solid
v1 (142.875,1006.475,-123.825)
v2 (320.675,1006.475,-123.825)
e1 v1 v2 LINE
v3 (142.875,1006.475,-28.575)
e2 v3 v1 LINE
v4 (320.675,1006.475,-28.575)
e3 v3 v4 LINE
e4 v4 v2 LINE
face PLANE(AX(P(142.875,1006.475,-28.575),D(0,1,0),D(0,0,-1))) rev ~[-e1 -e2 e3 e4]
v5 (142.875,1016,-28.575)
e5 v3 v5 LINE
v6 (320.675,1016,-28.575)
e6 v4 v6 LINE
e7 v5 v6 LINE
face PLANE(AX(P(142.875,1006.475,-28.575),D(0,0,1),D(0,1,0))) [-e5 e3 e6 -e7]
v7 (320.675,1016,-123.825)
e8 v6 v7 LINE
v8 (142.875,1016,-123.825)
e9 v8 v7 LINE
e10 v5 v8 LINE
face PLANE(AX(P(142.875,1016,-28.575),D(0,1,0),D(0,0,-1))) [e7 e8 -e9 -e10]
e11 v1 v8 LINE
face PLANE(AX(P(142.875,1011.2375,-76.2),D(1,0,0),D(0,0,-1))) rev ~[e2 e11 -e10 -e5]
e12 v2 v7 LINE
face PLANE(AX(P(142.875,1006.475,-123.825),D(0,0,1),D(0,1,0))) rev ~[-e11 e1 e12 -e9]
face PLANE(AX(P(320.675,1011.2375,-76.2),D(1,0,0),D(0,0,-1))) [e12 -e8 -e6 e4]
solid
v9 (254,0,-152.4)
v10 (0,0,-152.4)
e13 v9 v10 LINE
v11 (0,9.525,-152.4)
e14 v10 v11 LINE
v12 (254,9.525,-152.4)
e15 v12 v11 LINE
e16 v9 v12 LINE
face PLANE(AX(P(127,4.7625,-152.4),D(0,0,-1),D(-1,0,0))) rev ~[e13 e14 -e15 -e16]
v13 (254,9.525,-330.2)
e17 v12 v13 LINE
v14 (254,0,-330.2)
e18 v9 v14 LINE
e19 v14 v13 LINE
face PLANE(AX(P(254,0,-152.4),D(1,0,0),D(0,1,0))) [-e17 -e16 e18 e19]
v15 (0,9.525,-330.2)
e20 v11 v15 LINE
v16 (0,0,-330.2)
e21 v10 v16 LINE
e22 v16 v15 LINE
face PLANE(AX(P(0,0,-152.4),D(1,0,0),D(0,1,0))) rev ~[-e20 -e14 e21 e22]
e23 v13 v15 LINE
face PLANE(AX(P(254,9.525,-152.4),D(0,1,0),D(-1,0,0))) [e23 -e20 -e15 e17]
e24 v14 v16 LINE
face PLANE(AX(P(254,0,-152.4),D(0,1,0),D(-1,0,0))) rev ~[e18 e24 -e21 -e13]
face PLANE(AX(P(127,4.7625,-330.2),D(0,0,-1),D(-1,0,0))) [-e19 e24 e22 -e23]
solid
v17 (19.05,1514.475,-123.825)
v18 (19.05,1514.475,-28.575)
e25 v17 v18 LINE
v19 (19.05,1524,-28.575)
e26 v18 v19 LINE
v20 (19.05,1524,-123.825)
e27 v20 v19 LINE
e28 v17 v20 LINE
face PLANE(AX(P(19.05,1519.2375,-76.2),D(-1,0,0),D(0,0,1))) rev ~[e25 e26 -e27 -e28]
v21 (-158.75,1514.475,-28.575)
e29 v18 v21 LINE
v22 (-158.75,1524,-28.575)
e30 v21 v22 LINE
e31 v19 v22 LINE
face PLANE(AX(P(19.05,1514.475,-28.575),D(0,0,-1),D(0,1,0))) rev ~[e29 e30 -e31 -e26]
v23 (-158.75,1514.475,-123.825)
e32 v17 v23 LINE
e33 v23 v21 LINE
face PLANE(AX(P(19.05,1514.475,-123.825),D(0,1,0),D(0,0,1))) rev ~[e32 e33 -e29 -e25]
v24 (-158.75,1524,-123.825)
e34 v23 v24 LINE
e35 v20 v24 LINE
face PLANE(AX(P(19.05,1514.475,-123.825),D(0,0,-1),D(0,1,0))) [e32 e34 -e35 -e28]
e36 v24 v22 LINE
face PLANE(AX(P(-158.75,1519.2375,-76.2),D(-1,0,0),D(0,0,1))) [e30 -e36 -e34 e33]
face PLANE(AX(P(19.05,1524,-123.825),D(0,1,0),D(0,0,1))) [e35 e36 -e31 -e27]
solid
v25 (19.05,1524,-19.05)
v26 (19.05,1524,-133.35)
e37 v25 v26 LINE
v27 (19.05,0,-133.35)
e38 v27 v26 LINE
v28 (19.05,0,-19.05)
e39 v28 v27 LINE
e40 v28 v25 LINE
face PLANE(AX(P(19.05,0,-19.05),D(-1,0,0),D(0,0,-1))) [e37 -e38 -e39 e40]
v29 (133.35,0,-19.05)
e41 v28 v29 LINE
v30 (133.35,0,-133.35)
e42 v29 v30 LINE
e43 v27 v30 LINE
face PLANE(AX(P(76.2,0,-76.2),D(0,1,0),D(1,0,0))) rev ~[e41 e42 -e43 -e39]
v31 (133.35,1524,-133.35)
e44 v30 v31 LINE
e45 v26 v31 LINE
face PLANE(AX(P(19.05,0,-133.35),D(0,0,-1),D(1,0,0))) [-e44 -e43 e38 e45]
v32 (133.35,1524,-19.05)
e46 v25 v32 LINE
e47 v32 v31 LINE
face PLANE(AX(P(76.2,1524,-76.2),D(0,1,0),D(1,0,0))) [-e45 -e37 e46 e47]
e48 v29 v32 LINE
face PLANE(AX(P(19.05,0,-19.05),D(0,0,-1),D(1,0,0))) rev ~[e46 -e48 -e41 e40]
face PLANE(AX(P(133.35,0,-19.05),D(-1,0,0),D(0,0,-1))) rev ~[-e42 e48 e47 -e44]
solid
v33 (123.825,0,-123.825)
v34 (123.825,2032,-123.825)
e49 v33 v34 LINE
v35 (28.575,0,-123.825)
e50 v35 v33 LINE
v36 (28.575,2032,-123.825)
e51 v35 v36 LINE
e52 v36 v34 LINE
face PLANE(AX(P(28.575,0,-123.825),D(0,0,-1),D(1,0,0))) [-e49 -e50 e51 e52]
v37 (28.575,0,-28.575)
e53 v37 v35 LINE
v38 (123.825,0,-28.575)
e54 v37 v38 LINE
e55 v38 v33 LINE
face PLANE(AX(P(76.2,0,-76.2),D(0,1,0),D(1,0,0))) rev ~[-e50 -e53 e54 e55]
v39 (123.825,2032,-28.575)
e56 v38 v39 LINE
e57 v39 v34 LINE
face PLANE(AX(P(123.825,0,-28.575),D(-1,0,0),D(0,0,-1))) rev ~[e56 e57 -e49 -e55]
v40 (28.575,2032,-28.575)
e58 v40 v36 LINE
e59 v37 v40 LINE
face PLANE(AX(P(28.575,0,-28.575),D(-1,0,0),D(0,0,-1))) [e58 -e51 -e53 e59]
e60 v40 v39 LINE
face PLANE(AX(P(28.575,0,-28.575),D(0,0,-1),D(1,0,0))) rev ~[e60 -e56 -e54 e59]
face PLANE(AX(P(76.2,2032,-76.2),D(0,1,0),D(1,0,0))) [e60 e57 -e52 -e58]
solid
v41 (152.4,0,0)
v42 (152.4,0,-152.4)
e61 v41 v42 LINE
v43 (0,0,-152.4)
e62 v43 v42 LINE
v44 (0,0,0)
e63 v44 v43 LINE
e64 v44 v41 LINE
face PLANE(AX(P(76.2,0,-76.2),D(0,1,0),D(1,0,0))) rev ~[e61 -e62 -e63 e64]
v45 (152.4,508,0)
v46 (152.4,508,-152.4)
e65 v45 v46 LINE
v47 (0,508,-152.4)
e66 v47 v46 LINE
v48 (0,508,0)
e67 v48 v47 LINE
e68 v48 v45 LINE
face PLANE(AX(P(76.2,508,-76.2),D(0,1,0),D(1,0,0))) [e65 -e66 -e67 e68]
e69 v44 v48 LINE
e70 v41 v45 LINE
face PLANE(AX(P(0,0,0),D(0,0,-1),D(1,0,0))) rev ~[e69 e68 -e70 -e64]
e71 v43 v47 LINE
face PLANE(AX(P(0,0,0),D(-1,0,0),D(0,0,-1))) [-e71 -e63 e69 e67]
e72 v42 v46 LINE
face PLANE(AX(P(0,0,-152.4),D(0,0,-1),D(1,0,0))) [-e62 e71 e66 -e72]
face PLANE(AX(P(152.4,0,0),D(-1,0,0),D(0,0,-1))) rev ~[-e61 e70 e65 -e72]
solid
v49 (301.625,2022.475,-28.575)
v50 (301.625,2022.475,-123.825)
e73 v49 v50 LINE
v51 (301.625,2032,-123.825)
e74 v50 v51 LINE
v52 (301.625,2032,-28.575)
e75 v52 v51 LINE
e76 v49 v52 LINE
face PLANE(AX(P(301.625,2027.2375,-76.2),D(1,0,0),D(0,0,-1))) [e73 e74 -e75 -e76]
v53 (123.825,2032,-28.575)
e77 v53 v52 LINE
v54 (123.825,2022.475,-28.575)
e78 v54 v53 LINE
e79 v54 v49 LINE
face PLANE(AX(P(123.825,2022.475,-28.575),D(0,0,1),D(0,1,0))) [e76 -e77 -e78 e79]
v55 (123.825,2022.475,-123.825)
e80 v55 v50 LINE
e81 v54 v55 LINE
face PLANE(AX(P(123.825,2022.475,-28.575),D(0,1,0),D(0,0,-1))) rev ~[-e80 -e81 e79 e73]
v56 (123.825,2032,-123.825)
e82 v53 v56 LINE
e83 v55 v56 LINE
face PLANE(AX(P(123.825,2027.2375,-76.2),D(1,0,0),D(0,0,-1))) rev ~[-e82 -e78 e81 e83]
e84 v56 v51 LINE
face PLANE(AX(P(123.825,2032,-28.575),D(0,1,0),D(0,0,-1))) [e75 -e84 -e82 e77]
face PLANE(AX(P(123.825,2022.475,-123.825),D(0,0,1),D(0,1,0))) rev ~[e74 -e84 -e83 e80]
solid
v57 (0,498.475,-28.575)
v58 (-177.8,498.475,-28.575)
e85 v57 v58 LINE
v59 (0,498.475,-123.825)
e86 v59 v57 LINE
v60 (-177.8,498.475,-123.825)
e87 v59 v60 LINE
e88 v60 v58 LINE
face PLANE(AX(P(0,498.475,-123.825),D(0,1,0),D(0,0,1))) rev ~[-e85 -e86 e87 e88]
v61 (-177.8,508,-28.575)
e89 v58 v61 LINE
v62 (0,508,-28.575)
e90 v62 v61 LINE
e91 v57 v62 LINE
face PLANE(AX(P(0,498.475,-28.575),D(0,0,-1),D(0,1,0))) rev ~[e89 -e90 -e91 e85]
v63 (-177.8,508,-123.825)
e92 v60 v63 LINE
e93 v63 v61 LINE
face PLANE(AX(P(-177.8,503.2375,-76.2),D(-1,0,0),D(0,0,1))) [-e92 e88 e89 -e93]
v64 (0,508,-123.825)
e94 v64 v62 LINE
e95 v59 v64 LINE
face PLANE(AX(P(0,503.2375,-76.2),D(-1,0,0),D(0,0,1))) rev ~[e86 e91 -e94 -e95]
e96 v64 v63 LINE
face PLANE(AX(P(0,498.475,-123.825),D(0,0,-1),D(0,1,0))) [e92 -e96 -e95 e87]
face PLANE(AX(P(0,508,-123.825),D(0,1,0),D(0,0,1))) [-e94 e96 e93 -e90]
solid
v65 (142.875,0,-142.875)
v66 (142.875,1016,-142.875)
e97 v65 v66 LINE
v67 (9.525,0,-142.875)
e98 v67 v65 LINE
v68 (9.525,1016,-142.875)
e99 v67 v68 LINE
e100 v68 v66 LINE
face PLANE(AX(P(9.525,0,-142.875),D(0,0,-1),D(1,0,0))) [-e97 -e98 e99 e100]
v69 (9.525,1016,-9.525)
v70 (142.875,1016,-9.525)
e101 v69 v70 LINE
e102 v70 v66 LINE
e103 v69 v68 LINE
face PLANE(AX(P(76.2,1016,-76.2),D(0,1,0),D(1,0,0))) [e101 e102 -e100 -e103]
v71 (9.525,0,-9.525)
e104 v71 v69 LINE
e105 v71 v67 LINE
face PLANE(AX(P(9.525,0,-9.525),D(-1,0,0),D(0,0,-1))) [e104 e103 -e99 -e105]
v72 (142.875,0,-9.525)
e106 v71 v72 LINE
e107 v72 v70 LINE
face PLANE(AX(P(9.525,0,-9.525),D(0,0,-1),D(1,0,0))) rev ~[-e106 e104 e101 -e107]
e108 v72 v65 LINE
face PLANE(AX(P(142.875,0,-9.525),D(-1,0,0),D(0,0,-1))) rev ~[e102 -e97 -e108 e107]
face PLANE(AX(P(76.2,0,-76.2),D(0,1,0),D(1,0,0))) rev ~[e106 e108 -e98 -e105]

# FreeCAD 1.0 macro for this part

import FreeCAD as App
import Part
import Sketcher

V = App.Vector
Q = App.Units.Quantity


def add_polygon(sketch, points):
    """Adds a closed chain of lines whose ends are joined by coincident constraints."""
    first, n = sketch.GeometryCount, len(points)
    for a, b in zip(points, points[1:] + points[:1]):
        sketch.addGeometry(Part.LineSegment(App.Vector(*a, 0), App.Vector(*b, 0)), False)
    for i in range(n):
        sketch.addConstraint(Sketcher.Constraint("Coincident", first + i, 2, first + (i + 1) % n, 1))

doc = App.newDocument("Part")
body = doc.addObject("PartDesign::Body", "Body")

sketch1 = body.newObject("Sketcher::SketchObject", "Sketch")
sketch1.AttachmentSupport = (doc.getObject("XZ_Plane"), [""])
sketch1.MapMode = "FlatFace"
add_polygon(sketch1, [(28.575, -123.825), (28.575, -28.575), (123.825, -28.575), (123.825, -123.825)])
sketch1.addConstraint(Sketcher.Constraint("Vertical", 0))
sketch1.addConstraint(Sketcher.Constraint("Horizontal", 1))
sketch1.addConstraint(Sketcher.Constraint("Vertical", 2))
sketch1.addConstraint(Sketcher.Constraint("Horizontal", 3))
sketch1.addConstraint(Sketcher.Constraint("Equal", 3, 0))
sketch1.addConstraint(Sketcher.Constraint("DistanceX", 1, 1, 1, 2, Q("3.75 in")))
sketch1.addConstraint(Sketcher.Constraint("DistanceX", -1, 1, 0, 2, Q("1.125 in")))
sketch1.addConstraint(Sketcher.Constraint("DistanceY", 0, 2, -1, 1, Q("1.125 in")))
pad1 = body.newObject("PartDesign::Pad", "Pad")
pad1.Profile = sketch1
pad1.Length = Q("80 in")
pad1.Reversed = True
body2 = doc.addObject("PartDesign::Body", "Body001")

sketch2 = body2.newObject("Sketcher::SketchObject", "Sketch001")
sketch2.AttachmentSupport = (doc.getObject("XZ_Plane001"), [""])
sketch2.MapMode = "FlatFace"
add_polygon(sketch2, [(19.05, -133.35), (19.05, -19.05), (133.35, -19.05), (133.35, -133.35)])
sketch2.addConstraint(Sketcher.Constraint("Vertical", 0))
sketch2.addConstraint(Sketcher.Constraint("Horizontal", 1))
sketch2.addConstraint(Sketcher.Constraint("Vertical", 2))
sketch2.addConstraint(Sketcher.Constraint("Horizontal", 3))
sketch2.addConstraint(Sketcher.Constraint("Equal", 3, 0))
sketch2.addConstraint(Sketcher.Constraint("DistanceX", 1, 1, 1, 2, Q("4.5 in")))
sketch2.addConstraint(Sketcher.Constraint("DistanceX", -1, 1, 0, 2, Q("0.75 in")))
sketch2.addConstraint(Sketcher.Constraint("DistanceY", 0, 2, -1, 1, Q("0.75 in")))
pad2 = body2.newObject("PartDesign::Pad", "Pad001")
pad2.Profile = sketch2
pad2.Length = Q("60 in")
pad2.Reversed = True
body3 = doc.addObject("PartDesign::Body", "Body002")

sketch3 = body3.newObject("Sketcher::SketchObject", "Sketch002")
sketch3.AttachmentSupport = (doc.getObject("XZ_Plane002"), [""])
sketch3.MapMode = "FlatFace"
add_polygon(sketch3, [(9.525, -142.875), (9.525, -9.525), (142.875, -9.525), (142.875, -142.875)])
sketch3.addConstraint(Sketcher.Constraint("Vertical", 0))
sketch3.addConstraint(Sketcher.Constraint("Horizontal", 1))
sketch3.addConstraint(Sketcher.Constraint("Vertical", 2))
sketch3.addConstraint(Sketcher.Constraint("Horizontal", 3))
sketch3.addConstraint(Sketcher.Constraint("Equal", 3, 0))
sketch3.addConstraint(Sketcher.Constraint("DistanceX", 1, 1, 1, 2, Q("5.25 in")))
sketch3.addConstraint(Sketcher.Constraint("DistanceX", -1, 1, 0, 2, Q("0.375 in")))
sketch3.addConstraint(Sketcher.Constraint("DistanceY", 0, 2, -1, 1, Q("0.375 in")))
pad3 = body3.newObject("PartDesign::Pad", "Pad002")
pad3.Profile = sketch3
pad3.Length = Q("40 in")
pad3.Reversed = True
body4 = doc.addObject("PartDesign::Body", "Body003")

sketch4 = body4.newObject("Sketcher::SketchObject", "Sketch003")
sketch4.AttachmentSupport = (doc.getObject("XZ_Plane003"), [""])
sketch4.MapMode = "FlatFace"
add_polygon(sketch4, [(0, -152.4), (0, 0), (152.4, 0), (152.4, -152.4)])
sketch4.addConstraint(Sketcher.Constraint("Vertical", 0))
sketch4.addConstraint(Sketcher.Constraint("Horizontal", 1))
sketch4.addConstraint(Sketcher.Constraint("Vertical", 2))
sketch4.addConstraint(Sketcher.Constraint("Horizontal", 3))
sketch4.addConstraint(Sketcher.Constraint("Coincident", 0, 2, -1, 1))
sketch4.addConstraint(Sketcher.Constraint("Equal", 3, 0))
sketch4.addConstraint(Sketcher.Constraint("DistanceX", 1, 1, 1, 2, Q("6 in")))
pad4 = body4.newObject("PartDesign::Pad", "Pad003")
pad4.Profile = sketch4
pad4.Length = Q("20 in")
pad4.Reversed = True
body5 = doc.addObject("PartDesign::Body", "Body004")

sketch5 = body5.newObject("Sketcher::SketchObject", "Sketch004")
sketch5.AttachmentSupport = (doc.getObject("YZ_Plane004"), [""])
sketch5.MapMode = "FlatFace"
sketch5.AttachmentOffset = App.Placement(V(0, 0, 4.875 * 25.4), App.Rotation())
add_polygon(sketch5, [(2032, -28.575), (2022.475, -28.575), (2022.475, -123.825), (2032, -123.825)])
sketch5.addConstraint(Sketcher.Constraint("Horizontal", 0))
sketch5.addConstraint(Sketcher.Constraint("Vertical", 1))
sketch5.addConstraint(Sketcher.Constraint("Horizontal", 2))
sketch5.addConstraint(Sketcher.Constraint("Vertical", 3))
sketch5.addConstraint(Sketcher.Constraint("DistanceX", -1, 1, 2, 2, Q("80 in")))
sketch5.addConstraint(Sketcher.Constraint("DistanceY", 1, 2, 1, 1, Q("3.75 in")))
sketch5.addConstraint(Sketcher.Constraint("DistanceX", 0, 2, 0, 1, Q("0.375 in")))
sketch5.addConstraint(Sketcher.Constraint("DistanceY", 0, 2, -1, 1, Q("1.125 in")))
pad5 = body5.newObject("PartDesign::Pad", "Pad004")
pad5.Profile = sketch5
pad5.Length = Q("7 in")
body6 = doc.addObject("PartDesign::Body", "Body005")

sketch6 = body6.newObject("Sketcher::SketchObject", "Sketch005")
sketch6.AttachmentSupport = (doc.getObject("YZ_Plane005"), [""])
sketch6.MapMode = "FlatFace"
sketch6.AttachmentOffset = App.Placement(V(0, 0, 0.75 * 25.4), App.Rotation())
add_polygon(sketch6, [(1524, -123.825), (1514.475, -123.825), (1514.475, -28.575), (1524, -28.575)])
sketch6.addConstraint(Sketcher.Constraint("Horizontal", 0))
sketch6.addConstraint(Sketcher.Constraint("Vertical", 1))
sketch6.addConstraint(Sketcher.Constraint("Horizontal", 2))
sketch6.addConstraint(Sketcher.Constraint("Vertical", 3))
sketch6.addConstraint(Sketcher.Constraint("DistanceX", -1, 1, 2, 2, Q("60 in")))
sketch6.addConstraint(Sketcher.Constraint("DistanceY", 1, 1, 1, 2, Q("3.75 in")))
sketch6.addConstraint(Sketcher.Constraint("DistanceX", 0, 2, 0, 1, Q("0.375 in")))
sketch6.addConstraint(Sketcher.Constraint("DistanceY", 0, 2, -1, 1, Q("4.875 in")))
pad6 = body6.newObject("PartDesign::Pad", "Pad005")
pad6.Profile = sketch6
pad6.Length = Q("7 in")
pad6.Reversed = True
body7 = doc.addObject("PartDesign::Body", "Body006")

sketch7 = body7.newObject("Sketcher::SketchObject", "Sketch006")
sketch7.AttachmentSupport = (doc.getObject("YZ_Plane006"), [""])
sketch7.MapMode = "FlatFace"
sketch7.AttachmentOffset = App.Placement(V(0, 0, 5.625 * 25.4), App.Rotation())
add_polygon(sketch7, [(1016, -28.575), (1006.475, -28.575), (1006.475, -123.825), (1016, -123.825)])
sketch7.addConstraint(Sketcher.Constraint("Horizontal", 0))
sketch7.addConstraint(Sketcher.Constraint("Vertical", 1))
sketch7.addConstraint(Sketcher.Constraint("Horizontal", 2))
sketch7.addConstraint(Sketcher.Constraint("Vertical", 3))
sketch7.addConstraint(Sketcher.Constraint("DistanceX", -1, 1, 2, 2, Q("40 in")))
sketch7.addConstraint(Sketcher.Constraint("DistanceY", 1, 2, 1, 1, Q("3.75 in")))
sketch7.addConstraint(Sketcher.Constraint("DistanceX", 0, 2, 0, 1, Q("0.375 in")))
sketch7.addConstraint(Sketcher.Constraint("DistanceY", 0, 2, -1, 1, Q("1.125 in")))
pad7 = body7.newObject("PartDesign::Pad", "Pad006")
pad7.Profile = sketch7
pad7.Length = Q("7 in")
body8 = doc.addObject("PartDesign::Body", "Body007")

sketch8 = body8.newObject("Sketcher::SketchObject", "Sketch007")
sketch8.AttachmentSupport = (doc.getObject("YZ_Plane007"), [""])
sketch8.MapMode = "FlatFace"
add_polygon(sketch8, [(508, -123.825), (498.475, -123.825), (498.475, -28.575), (508, -28.575)])
sketch8.addConstraint(Sketcher.Constraint("Horizontal", 0))
sketch8.addConstraint(Sketcher.Constraint("Vertical", 1))
sketch8.addConstraint(Sketcher.Constraint("Horizontal", 2))
sketch8.addConstraint(Sketcher.Constraint("Vertical", 3))
sketch8.addConstraint(Sketcher.Constraint("DistanceX", -1, 1, 2, 2, Q("20 in")))
sketch8.addConstraint(Sketcher.Constraint("DistanceY", 1, 1, 1, 2, Q("3.75 in")))
sketch8.addConstraint(Sketcher.Constraint("DistanceX", 0, 2, 0, 1, Q("0.375 in")))
sketch8.addConstraint(Sketcher.Constraint("DistanceY", 0, 2, -1, 1, Q("4.875 in")))
pad8 = body8.newObject("PartDesign::Pad", "Pad007")
pad8.Profile = sketch8
pad8.Length = Q("7 in")
pad8.Reversed = True
body9 = doc.addObject("PartDesign::Body", "Body008")

sketch9 = body9.newObject("Sketcher::SketchObject", "Sketch008")
sketch9.AttachmentSupport = (doc.getObject("XY_Plane008"), [""])
sketch9.MapMode = "FlatFace"
sketch9.AttachmentOffset = App.Placement(V(0, 0, -6 * 25.4), App.Rotation())
add_polygon(sketch9, [(254, 9.525), (254, 0), (0, 0), (0, 9.525)])
sketch9.addConstraint(Sketcher.Constraint("Vertical", 0))
sketch9.addConstraint(Sketcher.Constraint("Horizontal", 1))
sketch9.addConstraint(Sketcher.Constraint("Vertical", 2))
sketch9.addConstraint(Sketcher.Constraint("Horizontal", 3))
sketch9.addConstraint(Sketcher.Constraint("Coincident", 1, 2, -1, 1))
sketch9.addConstraint(Sketcher.Constraint("DistanceX", 1, 2, 1, 1, Q("10 in")))
sketch9.addConstraint(Sketcher.Constraint("DistanceY", 0, 2, 0, 1, Q("0.375 in")))
pad9 = body9.newObject("PartDesign::Pad", "Pad008")
pad9.Profile = sketch9
pad9.Length = Q("7 in")
pad9.Reversed = True

doc.recompute()
